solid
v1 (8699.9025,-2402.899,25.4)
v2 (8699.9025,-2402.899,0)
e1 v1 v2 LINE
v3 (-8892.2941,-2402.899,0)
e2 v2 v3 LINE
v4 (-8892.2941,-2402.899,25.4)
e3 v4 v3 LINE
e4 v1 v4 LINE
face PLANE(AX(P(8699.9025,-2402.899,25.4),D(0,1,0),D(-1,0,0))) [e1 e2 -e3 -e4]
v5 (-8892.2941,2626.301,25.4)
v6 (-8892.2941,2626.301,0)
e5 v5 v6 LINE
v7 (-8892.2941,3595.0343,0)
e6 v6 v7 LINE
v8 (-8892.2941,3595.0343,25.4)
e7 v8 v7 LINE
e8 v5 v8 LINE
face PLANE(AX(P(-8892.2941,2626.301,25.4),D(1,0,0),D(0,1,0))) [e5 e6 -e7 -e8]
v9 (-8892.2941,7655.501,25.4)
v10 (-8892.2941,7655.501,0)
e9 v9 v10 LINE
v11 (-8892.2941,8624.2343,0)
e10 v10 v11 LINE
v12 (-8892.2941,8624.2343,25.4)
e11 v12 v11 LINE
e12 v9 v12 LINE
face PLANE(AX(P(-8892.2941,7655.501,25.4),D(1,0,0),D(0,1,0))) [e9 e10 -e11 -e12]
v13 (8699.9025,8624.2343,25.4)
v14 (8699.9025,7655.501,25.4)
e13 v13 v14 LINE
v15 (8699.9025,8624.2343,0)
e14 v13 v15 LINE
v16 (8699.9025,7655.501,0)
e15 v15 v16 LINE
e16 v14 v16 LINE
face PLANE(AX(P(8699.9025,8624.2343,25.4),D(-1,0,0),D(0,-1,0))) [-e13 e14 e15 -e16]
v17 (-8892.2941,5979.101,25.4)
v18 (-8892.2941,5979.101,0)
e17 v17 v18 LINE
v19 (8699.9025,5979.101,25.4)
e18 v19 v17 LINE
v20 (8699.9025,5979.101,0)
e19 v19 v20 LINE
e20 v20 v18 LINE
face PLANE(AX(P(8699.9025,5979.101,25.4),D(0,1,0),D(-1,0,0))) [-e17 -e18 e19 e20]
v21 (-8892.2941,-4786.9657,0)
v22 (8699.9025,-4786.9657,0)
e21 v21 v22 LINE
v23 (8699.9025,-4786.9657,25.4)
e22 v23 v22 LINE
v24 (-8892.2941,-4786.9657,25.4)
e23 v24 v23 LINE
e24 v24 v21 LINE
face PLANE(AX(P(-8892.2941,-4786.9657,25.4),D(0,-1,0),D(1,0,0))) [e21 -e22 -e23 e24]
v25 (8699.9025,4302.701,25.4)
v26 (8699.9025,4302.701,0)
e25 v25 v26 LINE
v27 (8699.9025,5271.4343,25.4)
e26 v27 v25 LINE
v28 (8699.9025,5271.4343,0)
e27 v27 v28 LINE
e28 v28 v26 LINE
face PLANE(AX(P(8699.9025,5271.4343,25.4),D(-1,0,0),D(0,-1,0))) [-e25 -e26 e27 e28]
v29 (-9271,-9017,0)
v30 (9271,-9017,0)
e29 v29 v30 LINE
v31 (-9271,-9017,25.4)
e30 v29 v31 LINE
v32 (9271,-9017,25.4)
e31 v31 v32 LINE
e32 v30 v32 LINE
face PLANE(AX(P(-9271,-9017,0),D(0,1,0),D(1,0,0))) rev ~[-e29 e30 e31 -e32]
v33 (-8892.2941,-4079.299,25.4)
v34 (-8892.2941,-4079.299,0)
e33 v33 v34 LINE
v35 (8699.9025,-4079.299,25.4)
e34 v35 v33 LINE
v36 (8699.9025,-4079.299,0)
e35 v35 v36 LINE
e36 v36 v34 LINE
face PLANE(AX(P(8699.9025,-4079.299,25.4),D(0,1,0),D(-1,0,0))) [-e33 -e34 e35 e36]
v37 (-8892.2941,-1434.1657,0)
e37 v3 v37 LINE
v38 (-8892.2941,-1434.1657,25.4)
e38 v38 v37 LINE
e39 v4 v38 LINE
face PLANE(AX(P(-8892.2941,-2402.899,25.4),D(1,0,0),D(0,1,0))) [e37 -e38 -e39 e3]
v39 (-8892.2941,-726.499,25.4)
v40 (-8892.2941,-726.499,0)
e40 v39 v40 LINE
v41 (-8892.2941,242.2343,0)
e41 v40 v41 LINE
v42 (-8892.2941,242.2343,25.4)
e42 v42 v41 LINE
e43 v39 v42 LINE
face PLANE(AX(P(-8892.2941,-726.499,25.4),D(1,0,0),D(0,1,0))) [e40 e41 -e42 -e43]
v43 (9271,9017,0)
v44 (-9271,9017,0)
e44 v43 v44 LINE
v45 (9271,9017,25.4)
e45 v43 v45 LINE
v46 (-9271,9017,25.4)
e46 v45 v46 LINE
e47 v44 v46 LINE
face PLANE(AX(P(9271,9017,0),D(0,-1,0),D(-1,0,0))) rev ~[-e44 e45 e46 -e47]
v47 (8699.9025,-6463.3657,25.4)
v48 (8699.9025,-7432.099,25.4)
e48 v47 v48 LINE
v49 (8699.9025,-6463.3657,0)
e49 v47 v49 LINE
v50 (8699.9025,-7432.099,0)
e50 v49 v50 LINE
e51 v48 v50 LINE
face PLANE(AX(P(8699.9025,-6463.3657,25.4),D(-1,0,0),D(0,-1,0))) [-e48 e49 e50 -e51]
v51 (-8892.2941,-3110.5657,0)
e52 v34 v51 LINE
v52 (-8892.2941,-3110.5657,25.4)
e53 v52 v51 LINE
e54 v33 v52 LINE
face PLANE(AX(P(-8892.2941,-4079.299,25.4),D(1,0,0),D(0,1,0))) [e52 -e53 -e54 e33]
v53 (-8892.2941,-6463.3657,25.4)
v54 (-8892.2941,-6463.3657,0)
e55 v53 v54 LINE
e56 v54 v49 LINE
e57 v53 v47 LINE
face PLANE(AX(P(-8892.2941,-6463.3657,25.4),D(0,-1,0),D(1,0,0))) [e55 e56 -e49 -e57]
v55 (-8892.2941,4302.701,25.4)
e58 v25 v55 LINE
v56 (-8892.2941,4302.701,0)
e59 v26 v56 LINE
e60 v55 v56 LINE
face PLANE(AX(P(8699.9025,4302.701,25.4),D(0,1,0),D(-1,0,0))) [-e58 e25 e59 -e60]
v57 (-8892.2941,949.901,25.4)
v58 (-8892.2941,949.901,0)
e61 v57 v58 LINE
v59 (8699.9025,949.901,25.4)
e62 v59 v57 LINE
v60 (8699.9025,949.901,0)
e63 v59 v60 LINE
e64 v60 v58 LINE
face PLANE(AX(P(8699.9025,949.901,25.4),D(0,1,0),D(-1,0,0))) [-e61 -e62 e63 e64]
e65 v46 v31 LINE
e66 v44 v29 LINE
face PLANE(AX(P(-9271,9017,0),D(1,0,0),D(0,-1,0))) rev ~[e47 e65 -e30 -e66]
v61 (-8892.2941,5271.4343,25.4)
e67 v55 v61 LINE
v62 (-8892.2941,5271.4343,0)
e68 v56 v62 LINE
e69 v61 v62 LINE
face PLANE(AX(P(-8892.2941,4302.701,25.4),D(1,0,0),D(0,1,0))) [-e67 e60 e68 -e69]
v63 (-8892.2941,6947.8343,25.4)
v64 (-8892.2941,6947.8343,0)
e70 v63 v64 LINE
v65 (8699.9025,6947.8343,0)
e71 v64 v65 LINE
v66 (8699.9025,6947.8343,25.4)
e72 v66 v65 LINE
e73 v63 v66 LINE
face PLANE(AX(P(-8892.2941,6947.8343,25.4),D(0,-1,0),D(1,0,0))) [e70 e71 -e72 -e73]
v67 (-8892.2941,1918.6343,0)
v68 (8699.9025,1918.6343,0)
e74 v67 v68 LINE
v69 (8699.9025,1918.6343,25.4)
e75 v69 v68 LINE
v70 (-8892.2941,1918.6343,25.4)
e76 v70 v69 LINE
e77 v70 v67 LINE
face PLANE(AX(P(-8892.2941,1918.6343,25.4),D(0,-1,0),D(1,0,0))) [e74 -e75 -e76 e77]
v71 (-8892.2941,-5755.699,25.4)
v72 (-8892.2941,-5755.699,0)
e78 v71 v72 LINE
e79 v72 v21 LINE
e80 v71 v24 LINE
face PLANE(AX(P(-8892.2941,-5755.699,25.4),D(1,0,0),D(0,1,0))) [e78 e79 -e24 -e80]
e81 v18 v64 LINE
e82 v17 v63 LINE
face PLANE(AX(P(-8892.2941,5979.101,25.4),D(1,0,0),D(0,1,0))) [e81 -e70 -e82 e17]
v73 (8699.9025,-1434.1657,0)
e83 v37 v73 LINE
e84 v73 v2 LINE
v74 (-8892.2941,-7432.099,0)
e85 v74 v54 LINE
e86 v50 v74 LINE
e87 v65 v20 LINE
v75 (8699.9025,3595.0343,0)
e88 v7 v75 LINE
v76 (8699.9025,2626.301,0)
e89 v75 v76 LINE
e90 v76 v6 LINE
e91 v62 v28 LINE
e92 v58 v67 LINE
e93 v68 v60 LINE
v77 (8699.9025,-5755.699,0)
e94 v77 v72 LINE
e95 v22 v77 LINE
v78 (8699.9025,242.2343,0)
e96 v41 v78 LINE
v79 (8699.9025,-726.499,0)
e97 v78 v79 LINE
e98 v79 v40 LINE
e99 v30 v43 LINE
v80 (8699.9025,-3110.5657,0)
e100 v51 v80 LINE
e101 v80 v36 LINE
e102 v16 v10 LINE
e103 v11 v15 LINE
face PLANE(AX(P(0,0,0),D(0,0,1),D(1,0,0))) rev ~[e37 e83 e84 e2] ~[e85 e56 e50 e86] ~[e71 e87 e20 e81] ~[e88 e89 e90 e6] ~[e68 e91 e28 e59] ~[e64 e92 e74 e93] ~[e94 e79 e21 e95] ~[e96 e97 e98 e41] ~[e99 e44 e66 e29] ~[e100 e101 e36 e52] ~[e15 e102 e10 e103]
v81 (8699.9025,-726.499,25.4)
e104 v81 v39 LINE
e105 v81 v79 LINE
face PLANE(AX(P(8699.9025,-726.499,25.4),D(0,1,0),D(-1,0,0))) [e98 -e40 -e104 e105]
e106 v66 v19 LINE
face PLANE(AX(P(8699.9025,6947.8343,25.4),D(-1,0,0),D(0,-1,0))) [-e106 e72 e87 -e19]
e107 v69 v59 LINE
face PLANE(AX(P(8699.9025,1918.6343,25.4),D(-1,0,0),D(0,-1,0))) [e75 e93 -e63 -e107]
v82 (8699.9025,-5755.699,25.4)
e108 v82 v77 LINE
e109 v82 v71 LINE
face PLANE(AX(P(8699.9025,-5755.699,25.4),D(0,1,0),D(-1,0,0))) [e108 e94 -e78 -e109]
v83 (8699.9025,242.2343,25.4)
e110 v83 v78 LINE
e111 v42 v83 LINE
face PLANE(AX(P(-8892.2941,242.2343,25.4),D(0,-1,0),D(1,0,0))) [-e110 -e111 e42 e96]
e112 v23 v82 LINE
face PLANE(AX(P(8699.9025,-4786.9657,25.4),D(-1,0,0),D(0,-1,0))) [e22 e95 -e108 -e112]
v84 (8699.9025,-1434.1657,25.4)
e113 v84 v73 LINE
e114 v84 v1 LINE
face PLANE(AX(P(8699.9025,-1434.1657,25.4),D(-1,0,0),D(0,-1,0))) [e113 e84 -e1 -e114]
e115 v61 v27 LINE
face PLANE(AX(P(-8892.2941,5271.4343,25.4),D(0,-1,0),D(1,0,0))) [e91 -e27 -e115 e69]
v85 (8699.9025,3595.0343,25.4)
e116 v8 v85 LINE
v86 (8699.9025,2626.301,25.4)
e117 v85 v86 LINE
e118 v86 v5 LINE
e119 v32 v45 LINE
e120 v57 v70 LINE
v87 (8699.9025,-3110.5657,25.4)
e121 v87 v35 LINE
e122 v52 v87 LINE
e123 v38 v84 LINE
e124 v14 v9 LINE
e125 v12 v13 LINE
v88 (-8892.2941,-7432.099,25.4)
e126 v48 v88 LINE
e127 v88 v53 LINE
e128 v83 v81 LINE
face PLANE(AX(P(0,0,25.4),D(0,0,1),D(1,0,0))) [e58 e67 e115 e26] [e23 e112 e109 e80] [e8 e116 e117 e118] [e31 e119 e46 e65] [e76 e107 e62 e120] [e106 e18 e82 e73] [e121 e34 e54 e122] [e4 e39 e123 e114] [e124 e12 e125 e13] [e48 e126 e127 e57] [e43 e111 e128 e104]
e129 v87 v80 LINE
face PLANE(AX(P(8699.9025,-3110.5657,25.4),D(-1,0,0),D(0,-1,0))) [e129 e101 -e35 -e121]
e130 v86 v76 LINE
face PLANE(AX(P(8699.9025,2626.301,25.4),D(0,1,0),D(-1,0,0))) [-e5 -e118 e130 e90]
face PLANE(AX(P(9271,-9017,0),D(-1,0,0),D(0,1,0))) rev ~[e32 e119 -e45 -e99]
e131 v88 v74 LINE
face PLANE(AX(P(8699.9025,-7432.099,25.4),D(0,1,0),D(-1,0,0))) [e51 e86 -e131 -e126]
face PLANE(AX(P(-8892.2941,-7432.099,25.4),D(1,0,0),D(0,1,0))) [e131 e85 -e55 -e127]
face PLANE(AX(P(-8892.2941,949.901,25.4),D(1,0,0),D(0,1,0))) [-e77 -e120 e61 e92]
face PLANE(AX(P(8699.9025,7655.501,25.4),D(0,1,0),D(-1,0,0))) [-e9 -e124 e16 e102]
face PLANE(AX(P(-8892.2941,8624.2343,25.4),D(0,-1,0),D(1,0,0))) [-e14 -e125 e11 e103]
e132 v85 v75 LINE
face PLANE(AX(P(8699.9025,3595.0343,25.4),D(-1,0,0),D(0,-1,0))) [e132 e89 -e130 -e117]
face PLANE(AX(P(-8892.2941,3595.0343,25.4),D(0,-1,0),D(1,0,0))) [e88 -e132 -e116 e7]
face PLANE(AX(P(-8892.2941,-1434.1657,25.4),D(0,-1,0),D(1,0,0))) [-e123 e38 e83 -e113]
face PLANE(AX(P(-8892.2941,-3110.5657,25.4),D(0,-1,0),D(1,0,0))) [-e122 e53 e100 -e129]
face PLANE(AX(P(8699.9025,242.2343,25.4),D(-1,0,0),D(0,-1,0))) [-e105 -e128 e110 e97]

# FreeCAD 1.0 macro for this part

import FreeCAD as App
import Part
import Sketcher
Q = App.Units.Quantity


def add_polygon(sketch, points):
    """Adds a closed chain of lines whose ends are joined by coincident constraints."""
    first, n = sketch.GeometryCount, len(points)
    for a, b in zip(points, points[1:] + points[:1]):
        sketch.addGeometry(Part.LineSegment(App.Vector(*a, 0), App.Vector(*b, 0)), False)
    for i in range(n):
        sketch.addConstraint(Sketcher.Constraint("Coincident", first + i, 2, first + (i + 1) % n, 1))

doc = App.newDocument("Part")
body = doc.addObject("PartDesign::Body", "Body")

# Sketch on XY plane
sketch1 = body.newObject("Sketcher::SketchObject", "Sketch")
sketch1.AttachmentSupport = (doc.getObject("XY_Plane"), [""])
sketch1.MapMode = "FlatFace"
add_polygon(sketch1, [(-9271, 9017), (-9271, -9017), (9271, -9017), (9271, 9017)])  # lines 0-3
sketch1.addConstraint([
    Sketcher.Constraint("Vertical", 0),
    Sketcher.Constraint("Horizontal", 1),
    Sketcher.Constraint("Vertical", 2),
    Sketcher.Constraint("Horizontal", 3),
    Sketcher.Constraint("Symmetric", 0, 2, 2, 2, -1, 1),
    Sketcher.Constraint("DistanceX", 1, 1, 1, 2, Q("730 in")),
    Sketcher.Constraint("DistanceY", 0, 2, 0, 1, Q("710 in")),
])
pad1 = body.newObject("PartDesign::Pad", "Pad")
pad1.Profile = sketch1
pad1.Length = Q("1 in")

# Sketch on XY plane
sketch2 = body.newObject("Sketcher::SketchObject", "Sketch001")
sketch2.AttachmentSupport = (doc.getObject("XY_Plane"), [""])
sketch2.MapMode = "FlatFace"
sketch2.AttachmentOffset = App.Placement(App.Vector(0, 0, 1 * 25.4), App.Rotation())
add_polygon(sketch2, [(8699.9025, 8624.2343), (-8892.2941, 8624.2343), (-8892.2941, 7655.501), (8699.9025, 7655.501)])  # lines 0-3
add_polygon(sketch2, [(-8892.2941, 5979.101), (8699.9025, 5979.101), (8699.9025, 6947.8343), (-8892.2941, 6947.8343)])  # lines 4-7
add_polygon(sketch2, [(-8892.2941, 4302.701), (8699.9025, 4302.701), (8699.9025, 5271.4343), (-8892.2941, 5271.4343)])  # lines 8-11
add_polygon(sketch2, [(-8892.2941, 2626.301), (8699.9025, 2626.301), (8699.9025, 3595.0343), (-8892.2941, 3595.0343)])  # lines 12-15
add_polygon(sketch2, [(-8892.2941, 949.901), (8699.9025, 949.901), (8699.9025, 1918.6343), (-8892.2941, 1918.6343)])  # lines 16-19
add_polygon(sketch2, [(-8892.2941, -726.499), (8699.9025, -726.499), (8699.9025, 242.2343), (-8892.2941, 242.2343)])  # lines 20-23
add_polygon(sketch2, [(-8892.2941, -2402.899), (8699.9025, -2402.899), (8699.9025, -1434.1657), (-8892.2941, -1434.1657)])  # lines 24-27
add_polygon(sketch2, [(-8892.2941, -4079.299), (8699.9025, -4079.299), (8699.9025, -3110.5657), (-8892.2941, -3110.5657)])  # lines 28-31
add_polygon(sketch2, [(-8892.2941, -5755.699), (8699.9025, -5755.699), (8699.9025, -4786.9657), (-8892.2941, -4786.9657)])  # lines 32-35
add_polygon(sketch2, [(-8892.2941, -7432.099), (8699.9025, -7432.099), (8699.9025, -6463.3657), (-8892.2941, -6463.3657)])  # lines 36-39
sketch2.addConstraint([
    Sketcher.Constraint("Horizontal", 0),
    Sketcher.Constraint("Vertical", 1),
    Sketcher.Constraint("Horizontal", 2),
    Sketcher.Constraint("Vertical", 3),
    Sketcher.Constraint("Horizontal", 4),
    Sketcher.Constraint("Vertical", 5),
    Sketcher.Constraint("Horizontal", 6),
    Sketcher.Constraint("Vertical", 7),
    Sketcher.Constraint("Horizontal", 8),
    Sketcher.Constraint("Vertical", 9),
    Sketcher.Constraint("Horizontal", 10),
    Sketcher.Constraint("Vertical", 11),
    Sketcher.Constraint("Horizontal", 12),
    Sketcher.Constraint("Vertical", 13),
    Sketcher.Constraint("Horizontal", 14),
    Sketcher.Constraint("Vertical", 15),
    Sketcher.Constraint("Horizontal", 16),
    Sketcher.Constraint("Vertical", 17),
    Sketcher.Constraint("Horizontal", 18),
    Sketcher.Constraint("Vertical", 19),
    Sketcher.Constraint("Horizontal", 20),
    Sketcher.Constraint("Vertical", 21),
    Sketcher.Constraint("Horizontal", 22),
    Sketcher.Constraint("Vertical", 23),
    Sketcher.Constraint("Horizontal", 24),
    Sketcher.Constraint("Vertical", 25),
    Sketcher.Constraint("Horizontal", 26),
    Sketcher.Constraint("Vertical", 27),
    Sketcher.Constraint("Horizontal", 28),
    Sketcher.Constraint("Vertical", 29),
    Sketcher.Constraint("Horizontal", 30),
    Sketcher.Constraint("Vertical", 31),
    Sketcher.Constraint("Horizontal", 32),
    Sketcher.Constraint("Vertical", 33),
    Sketcher.Constraint("Horizontal", 34),
    Sketcher.Constraint("Vertical", 35),
    Sketcher.Constraint("Horizontal", 36),
    Sketcher.Constraint("Vertical", 37),
    Sketcher.Constraint("Horizontal", 38),
    Sketcher.Constraint("Vertical", 39),
    Sketcher.Constraint("Vertical", 3, 2, 4, 2),
    Sketcher.Constraint("Vertical", 1, 2, 6, 2),
    Sketcher.Constraint("Vertical", 5, 2, 8, 2),
    Sketcher.Constraint("Vertical", 7, 2, 10, 2),
    Sketcher.Constraint("Vertical", 9, 2, 12, 2),
    Sketcher.Constraint("Vertical", 11, 2, 14, 2),
    Sketcher.Constraint("Vertical", 13, 2, 16, 2),
    Sketcher.Constraint("Vertical", 15, 2, 18, 2),
    Sketcher.Constraint("Vertical", 17, 2, 20, 2),
    Sketcher.Constraint("Vertical", 19, 2, 22, 2),
    Sketcher.Constraint("Vertical", 21, 2, 24, 2),
    Sketcher.Constraint("Vertical", 23, 2, 26, 2),
    Sketcher.Constraint("Vertical", 25, 2, 28, 2),
    Sketcher.Constraint("Vertical", 27, 2, 30, 2),
    Sketcher.Constraint("Vertical", 29, 2, 32, 2),
    Sketcher.Constraint("Vertical", 31, 2, 34, 2),
    Sketcher.Constraint("Vertical", 33, 2, 36, 2),
    Sketcher.Constraint("Vertical", 35, 2, 38, 2),
    Sketcher.Constraint("Equal", 3, 5),
    Sketcher.Constraint("Equal", 7, 9),
    Sketcher.Constraint("Equal", 11, 13),
    Sketcher.Constraint("Equal", 15, 17),
    Sketcher.Constraint("Equal", 19, 21),
    Sketcher.Constraint("Equal", 23, 25),
    Sketcher.Constraint("Equal", 27, 29),
    Sketcher.Constraint("Equal", 31, 33),
    Sketcher.Constraint("Equal", 35, 37),
    Sketcher.Constraint("DistanceY", 4, 2, 2, 2, Q("66 in")),
    Sketcher.Constraint("DistanceY", 8, 2, 4, 2, Q("66 in")),
    Sketcher.Constraint("DistanceY", 12, 2, 8, 2, Q("66 in")),
    Sketcher.Constraint("DistanceY", 16, 2, 12, 2, Q("66 in")),
    Sketcher.Constraint("DistanceY", 20, 2, 16, 2, Q("66 in")),
    Sketcher.Constraint("DistanceY", 24, 2, 20, 2, Q("66 in")),
    Sketcher.Constraint("DistanceY", 28, 2, 24, 2, Q("66 in")),
    Sketcher.Constraint("DistanceY", 32, 2, 28, 2, Q("66 in")),
    Sketcher.Constraint("DistanceY", 36, 2, 32, 2, Q("66 in")),
    Sketcher.Constraint("DistanceY", 1, 2, 1, 1, Q("38.1391 in")),
    Sketcher.Constraint("DistanceX", 0, 2, 0, 1, Q("17592.1966 mm")),
    Sketcher.Constraint("DistanceX", 0, 2, -1, 1, Q("8892.294 mm")),
    Sketcher.Constraint("DistanceY", -1, 1, 0, 2, Q("8624.2343 mm")),
])
pocket1 = body.newObject("PartDesign::Pocket", "Pocket")
pocket1.Profile = sketch2
pocket1.Type = "ThroughAll"

doc.recompute()
